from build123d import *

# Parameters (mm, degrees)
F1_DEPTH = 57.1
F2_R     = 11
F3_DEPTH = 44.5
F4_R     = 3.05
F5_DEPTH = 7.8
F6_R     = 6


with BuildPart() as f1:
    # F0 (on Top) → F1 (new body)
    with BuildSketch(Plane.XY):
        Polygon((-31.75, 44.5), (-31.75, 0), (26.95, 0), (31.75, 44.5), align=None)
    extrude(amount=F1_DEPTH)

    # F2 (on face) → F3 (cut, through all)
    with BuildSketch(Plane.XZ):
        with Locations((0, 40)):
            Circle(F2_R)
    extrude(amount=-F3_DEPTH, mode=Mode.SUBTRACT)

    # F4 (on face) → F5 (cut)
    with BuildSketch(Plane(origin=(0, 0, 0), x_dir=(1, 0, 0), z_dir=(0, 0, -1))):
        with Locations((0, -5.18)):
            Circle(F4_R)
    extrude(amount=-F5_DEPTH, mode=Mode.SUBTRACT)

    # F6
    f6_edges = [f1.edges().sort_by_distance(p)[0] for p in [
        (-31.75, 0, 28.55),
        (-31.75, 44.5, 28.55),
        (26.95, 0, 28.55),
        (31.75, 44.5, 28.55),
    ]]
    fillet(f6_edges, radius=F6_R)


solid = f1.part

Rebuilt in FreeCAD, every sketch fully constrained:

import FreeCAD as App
import Part
import Sketcher
from FreeCAD import Vector


def edges_at(feature, points):
    """Names of the edges that pass closest to the given points."""
    edges = feature.Shape.Edges
    near = lambda p: min(range(len(edges)), key=lambda i: edges[i].distToShape(Part.Vertex(*p))[0])
    return sorted({f"Edge{near(p) + 1}" for p in points})


def add_polygon(sketch, points):
    """Adds a closed chain of lines whose ends are joined by coincident constraints."""
    first, n = sketch.GeometryCount, len(points)
    for a, b in zip(points, points[1:] + points[:1]):
        sketch.addGeometry(Part.LineSegment(App.Vector(*a, 0), App.Vector(*b, 0)), False)
    for i in range(n):
        sketch.addConstraint(Sketcher.Constraint("Coincident", first + i, 2, first + (i + 1) % n, 1))

doc = App.newDocument("Part")
body = doc.addObject("PartDesign::Body", "Body")

# Sketch on XY plane
sketch1 = doc.addObject("Sketcher::SketchObject", "Sketch")
body.addObject(sketch1)
sketch1.AttachmentSupport = (doc.XY_Plane, [""])
sketch1.MapMode = "FlatFace"
add_polygon(sketch1, [(-32, 44), (-32, 0), (27, 0), (32, 44)])  # lines 0-3
sketch1.addConstraint([
    Sketcher.Constraint("Vertical", 0),
    Sketcher.Constraint("Horizontal", 1),
    Sketcher.Constraint("Horizontal", 3),
    Sketcher.Constraint("PointOnObject", 0, 2, -1),
    Sketcher.Constraint("DistanceX", 1, 1, 1, 2, 58.7),
    Sketcher.Constraint("DistanceX", 3, 2, 3, 1, 63.5),
    Sketcher.Constraint("DistanceY", 0, 2, 0, 1, 44.5),
    Sketcher.Constraint("DistanceX", 0, 2, -1, 1, 31.75),
])
pad1 = doc.addObject("PartDesign::Pad", "Pad")
body.addObject(pad1)
pad1.Profile = sketch1
pad1.Length = 57.1

# Sketch on XZ plane
sketch2 = doc.addObject("Sketcher::SketchObject", "Sketch001")
body.addObject(sketch2)
sketch2.AttachmentSupport = (doc.XZ_Plane, [""])
sketch2.MapMode = "FlatFace"
sketch2.addGeometry(Part.Circle(Vector(0, 40, 0), Vector(0, 0, 1), 11), False)
sketch2.addConstraint([
    Sketcher.Constraint("PointOnObject", 0, 3, -2),
    Sketcher.Constraint("Diameter", 0, 22.0),
    Sketcher.Constraint("DistanceY", -1, 1, 0, 3, 40.0),
])
pocket1 = doc.addObject("PartDesign::Pocket", "Pocket")
body.addObject(pocket1)
pocket1.Profile = sketch2
pocket1.Type = "ThroughAll"

# Sketch on XY plane
sketch3 = doc.addObject("Sketcher::SketchObject", "Sketch002")
body.addObject(sketch3)
sketch3.AttachmentSupport = (doc.XY_Plane, [""])
sketch3.MapMode = "FlatFace"
sketch3.addGeometry(Part.Circle(Vector(0, 5.2, 0), Vector(0, 0, 1), 3), False)
sketch3.addConstraint([
    Sketcher.Constraint("PointOnObject", 0, 3, -2),
    Sketcher.Constraint("Diameter", 0, 6.1),
    Sketcher.Constraint("DistanceY", -1, 1, 0, 3, 5.18),
])
pocket2 = doc.addObject("PartDesign::Pocket", "Pocket001")
body.addObject(pocket2)
pocket2.Profile = sketch3
pocket2.Length = 7.8
pocket2.Reversed = True
doc.recompute()

fillet = doc.addObject("PartDesign::Fillet", "Fillet")
body.addObject(fillet)
fillet.Base = (pocket2, edges_at(pocket2, [
    (-31.75, 0, 28.55),
    (-31.75, 44.5, 28.55),
    (26.95, 0, 28.55),
    (31.75, 44.5, 28.55),
]))
fillet.Radius = 6

doc.recompute()
